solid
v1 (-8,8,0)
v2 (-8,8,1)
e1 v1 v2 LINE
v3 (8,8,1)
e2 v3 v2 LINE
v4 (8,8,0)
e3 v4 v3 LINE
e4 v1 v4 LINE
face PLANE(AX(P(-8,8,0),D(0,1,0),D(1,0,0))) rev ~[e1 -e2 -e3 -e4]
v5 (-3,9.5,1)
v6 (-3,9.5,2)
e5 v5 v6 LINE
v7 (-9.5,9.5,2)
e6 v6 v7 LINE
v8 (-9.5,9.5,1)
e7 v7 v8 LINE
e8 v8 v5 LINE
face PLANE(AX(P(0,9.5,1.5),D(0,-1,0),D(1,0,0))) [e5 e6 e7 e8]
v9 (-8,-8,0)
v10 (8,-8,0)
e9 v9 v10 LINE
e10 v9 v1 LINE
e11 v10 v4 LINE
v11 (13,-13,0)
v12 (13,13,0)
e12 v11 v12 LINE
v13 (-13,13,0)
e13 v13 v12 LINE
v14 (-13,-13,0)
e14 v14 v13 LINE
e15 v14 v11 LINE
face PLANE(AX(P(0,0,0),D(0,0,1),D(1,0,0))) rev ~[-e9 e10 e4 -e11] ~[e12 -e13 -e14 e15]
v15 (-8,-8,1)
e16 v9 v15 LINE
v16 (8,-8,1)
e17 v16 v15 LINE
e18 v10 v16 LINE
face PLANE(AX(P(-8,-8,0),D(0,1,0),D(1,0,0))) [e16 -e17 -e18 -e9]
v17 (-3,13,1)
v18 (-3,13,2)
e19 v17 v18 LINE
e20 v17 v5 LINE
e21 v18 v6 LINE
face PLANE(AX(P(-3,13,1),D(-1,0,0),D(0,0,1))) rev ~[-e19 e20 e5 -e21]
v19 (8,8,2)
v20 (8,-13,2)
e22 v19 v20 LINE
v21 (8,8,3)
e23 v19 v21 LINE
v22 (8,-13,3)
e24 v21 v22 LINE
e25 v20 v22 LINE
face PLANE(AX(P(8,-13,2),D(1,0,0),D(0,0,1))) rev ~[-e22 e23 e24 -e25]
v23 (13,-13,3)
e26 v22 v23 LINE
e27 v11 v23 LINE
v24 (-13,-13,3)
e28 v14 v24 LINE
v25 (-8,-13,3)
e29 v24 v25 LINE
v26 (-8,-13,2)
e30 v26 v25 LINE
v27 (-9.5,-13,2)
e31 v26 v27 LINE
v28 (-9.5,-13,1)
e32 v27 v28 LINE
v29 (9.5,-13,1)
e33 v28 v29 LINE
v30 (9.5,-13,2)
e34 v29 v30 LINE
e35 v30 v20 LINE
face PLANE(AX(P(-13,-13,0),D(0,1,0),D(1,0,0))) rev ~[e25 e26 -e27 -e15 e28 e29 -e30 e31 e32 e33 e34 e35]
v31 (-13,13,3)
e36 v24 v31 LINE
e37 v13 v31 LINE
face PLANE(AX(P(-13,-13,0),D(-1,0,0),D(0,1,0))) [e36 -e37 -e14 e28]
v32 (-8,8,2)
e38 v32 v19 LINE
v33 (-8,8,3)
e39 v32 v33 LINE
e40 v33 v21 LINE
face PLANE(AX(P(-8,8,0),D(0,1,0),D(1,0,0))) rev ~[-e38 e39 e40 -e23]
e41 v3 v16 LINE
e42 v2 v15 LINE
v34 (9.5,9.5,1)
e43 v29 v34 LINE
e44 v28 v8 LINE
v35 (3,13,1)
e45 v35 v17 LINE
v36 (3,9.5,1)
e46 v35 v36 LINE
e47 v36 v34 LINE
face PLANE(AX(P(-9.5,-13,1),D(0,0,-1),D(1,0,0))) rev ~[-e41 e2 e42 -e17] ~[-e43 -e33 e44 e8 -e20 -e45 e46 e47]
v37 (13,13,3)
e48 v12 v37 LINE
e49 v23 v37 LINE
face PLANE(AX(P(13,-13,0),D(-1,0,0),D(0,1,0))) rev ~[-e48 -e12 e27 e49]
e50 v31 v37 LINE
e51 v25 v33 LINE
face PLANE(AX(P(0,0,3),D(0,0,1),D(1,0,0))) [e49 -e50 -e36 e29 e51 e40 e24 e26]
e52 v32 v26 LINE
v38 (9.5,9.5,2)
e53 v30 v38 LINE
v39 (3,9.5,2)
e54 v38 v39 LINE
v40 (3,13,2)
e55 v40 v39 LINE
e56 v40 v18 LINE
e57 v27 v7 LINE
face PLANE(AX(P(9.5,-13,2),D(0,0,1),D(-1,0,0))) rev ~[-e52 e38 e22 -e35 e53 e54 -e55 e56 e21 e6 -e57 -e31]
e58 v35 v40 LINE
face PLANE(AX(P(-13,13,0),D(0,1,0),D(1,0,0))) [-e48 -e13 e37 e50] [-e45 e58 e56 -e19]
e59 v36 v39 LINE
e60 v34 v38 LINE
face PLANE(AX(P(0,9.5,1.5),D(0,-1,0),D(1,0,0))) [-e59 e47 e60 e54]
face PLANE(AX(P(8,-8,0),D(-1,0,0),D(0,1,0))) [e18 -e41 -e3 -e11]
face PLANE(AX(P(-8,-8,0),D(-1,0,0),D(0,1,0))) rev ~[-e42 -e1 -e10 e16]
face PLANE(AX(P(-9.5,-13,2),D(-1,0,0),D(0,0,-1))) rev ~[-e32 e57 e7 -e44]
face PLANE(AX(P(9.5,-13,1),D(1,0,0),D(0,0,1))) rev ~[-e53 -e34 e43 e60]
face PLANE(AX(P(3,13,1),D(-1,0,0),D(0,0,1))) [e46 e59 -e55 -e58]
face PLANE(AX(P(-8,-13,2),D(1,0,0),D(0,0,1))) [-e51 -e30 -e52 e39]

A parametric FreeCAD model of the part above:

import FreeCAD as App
import Part
import Sketcher
from FreeCAD import Vector
Q = App.Units.Quantity


def add_polygon(sketch, points):
    """Adds a closed chain of lines whose ends are joined by coincident constraints."""
    first, n = sketch.GeometryCount, len(points)
    for a, b in zip(points, points[1:] + points[:1]):
        sketch.addGeometry(Part.LineSegment(App.Vector(*a, 0), App.Vector(*b, 0)), False)
    for i in range(n):
        sketch.addConstraint(Sketcher.Constraint("Coincident", first + i, 2, first + (i + 1) % n, 1))

doc = App.newDocument("Part")
body = doc.addObject("PartDesign::Body", "Body")

sketch1 = body.newObject("Sketcher::SketchObject", "Sketch")
sketch1.AttachmentSupport = (doc.getObject("XY_Plane"), [""])
sketch1.MapMode = "FlatFace"
add_polygon(sketch1, [(-13, 13), (-13, -13), (13, -13), (13, 13)])
add_polygon(sketch1, [(8, -8), (-8, -8), (-8, 8), (8, 8)])
sketch1.addConstraint([
    Sketcher.Constraint("Vertical", 0),
    Sketcher.Constraint("Horizontal", 1),
    Sketcher.Constraint("Vertical", 2),
    Sketcher.Constraint("Horizontal", 3),
    Sketcher.Constraint("Horizontal", 4),
    Sketcher.Constraint("Vertical", 5),
    Sketcher.Constraint("Horizontal", 6),
    Sketcher.Constraint("Vertical", 7),
    Sketcher.Constraint("Symmetric", 0, 2, 2, 2, -1, 1),
    Sketcher.Constraint("Symmetric", 4, 2, 6, 2, -1, 1),
    Sketcher.Constraint("Equal", 3, 0),
    Sketcher.Constraint("Equal", 6, 5),
    Sketcher.Constraint("DistanceX", 1, 1, 1, 2, Q("26 mm")),
    Sketcher.Constraint("DistanceX", 4, 2, 4, 1, Q("16 mm")),
])
pad1 = body.newObject("PartDesign::Pad", "Pad")
pad1.Profile = sketch1
pad1.Length = 3

sketch2 = body.newObject("Sketcher::SketchObject", "Sketch001")
sketch2.AttachmentSupport = (doc.getObject("XZ_Plane"), [""])
sketch2.MapMode = "FlatFace"
sketch2.AttachmentOffset = App.Placement(Vector(0, 0, 13), App.Rotation())
add_polygon(sketch2, [(-9.5, 2), (-9.5, 1), (9.5, 1), (9.5, 2)])
sketch2.addConstraint([
    Sketcher.Constraint("Vertical", 0),
    Sketcher.Constraint("Horizontal", 1),
    Sketcher.Constraint("Vertical", 2),
    Sketcher.Constraint("Horizontal", 3),
    Sketcher.Constraint("DistanceX", 1, 1, 1, 2, Q("19 mm")),
    Sketcher.Constraint("DistanceY", 0, 2, 0, 1, Q("1 mm")),
    Sketcher.Constraint("DistanceY", -1, 1, 0, 2, Q("1 mm")),
    Sketcher.Constraint("DistanceX", 0, 2, -1, 1, Q("9.5 mm")),
])
pocket1 = body.newObject("PartDesign::Pocket", "Pocket")
pocket1.Profile = sketch2
pocket1.Length = 22.5

sketch3 = body.newObject("Sketcher::SketchObject", "Sketch002")
sketch3.AttachmentSupport = (doc.getObject("XZ_Plane"), [""])
sketch3.MapMode = "FlatFace"
sketch3.AttachmentOffset = App.Placement(Vector(0, 0, 13), App.Rotation())
add_polygon(sketch3, [(-8, 3), (-8, 2), (8, 2), (8, 3)])
sketch3.addConstraint([
    Sketcher.Constraint("Vertical", 0),
    Sketcher.Constraint("Horizontal", 1),
    Sketcher.Constraint("Vertical", 2),
    Sketcher.Constraint("Horizontal", 3),
    Sketcher.Constraint("DistanceX", 1, 1, 1, 2, Q("16 mm")),
    Sketcher.Constraint("DistanceY", 0, 2, 0, 1, Q("1 mm")),
    Sketcher.Constraint("DistanceX", 0, 2, -1, 1, Q("8 mm")),
    Sketcher.Constraint("DistanceY", -1, 1, 0, 2, Q("2 mm")),
])
pocket2 = body.newObject("PartDesign::Pocket", "Pocket001")
pocket2.Profile = sketch3
pocket2.Length = 5

sketch4 = body.newObject("Sketcher::SketchObject", "Sketch003")
sketch4.AttachmentSupport = (doc.getObject("XZ_Plane"), [""])
sketch4.MapMode = "FlatFace"
sketch4.AttachmentOffset = App.Placement(Vector(0, 0, -13), App.Rotation())
add_polygon(sketch4, [(3, 2), (3, 1), (-3, 1), (-3, 2)])
sketch4.addConstraint([
    Sketcher.Constraint("Vertical", 0),
    Sketcher.Constraint("Horizontal", 1),
    Sketcher.Constraint("Vertical", 2),
    Sketcher.Constraint("Horizontal", 3),
    Sketcher.Constraint("DistanceX", 1, 2, 1, 1, Q("6 mm")),
    Sketcher.Constraint("DistanceY", 0, 2, 0, 1, Q("1 mm")),
    Sketcher.Constraint("DistanceX", -1, 1, 0, 2, Q("3 mm")),
    Sketcher.Constraint("DistanceY", -1, 1, 0, 2, Q("1 mm")),
])
pocket3 = body.newObject("PartDesign::Pocket", "Pocket002")
pocket3.Profile = sketch4
pocket3.Type = "ThroughAll"
pocket3.Reversed = True

doc.recompute()
